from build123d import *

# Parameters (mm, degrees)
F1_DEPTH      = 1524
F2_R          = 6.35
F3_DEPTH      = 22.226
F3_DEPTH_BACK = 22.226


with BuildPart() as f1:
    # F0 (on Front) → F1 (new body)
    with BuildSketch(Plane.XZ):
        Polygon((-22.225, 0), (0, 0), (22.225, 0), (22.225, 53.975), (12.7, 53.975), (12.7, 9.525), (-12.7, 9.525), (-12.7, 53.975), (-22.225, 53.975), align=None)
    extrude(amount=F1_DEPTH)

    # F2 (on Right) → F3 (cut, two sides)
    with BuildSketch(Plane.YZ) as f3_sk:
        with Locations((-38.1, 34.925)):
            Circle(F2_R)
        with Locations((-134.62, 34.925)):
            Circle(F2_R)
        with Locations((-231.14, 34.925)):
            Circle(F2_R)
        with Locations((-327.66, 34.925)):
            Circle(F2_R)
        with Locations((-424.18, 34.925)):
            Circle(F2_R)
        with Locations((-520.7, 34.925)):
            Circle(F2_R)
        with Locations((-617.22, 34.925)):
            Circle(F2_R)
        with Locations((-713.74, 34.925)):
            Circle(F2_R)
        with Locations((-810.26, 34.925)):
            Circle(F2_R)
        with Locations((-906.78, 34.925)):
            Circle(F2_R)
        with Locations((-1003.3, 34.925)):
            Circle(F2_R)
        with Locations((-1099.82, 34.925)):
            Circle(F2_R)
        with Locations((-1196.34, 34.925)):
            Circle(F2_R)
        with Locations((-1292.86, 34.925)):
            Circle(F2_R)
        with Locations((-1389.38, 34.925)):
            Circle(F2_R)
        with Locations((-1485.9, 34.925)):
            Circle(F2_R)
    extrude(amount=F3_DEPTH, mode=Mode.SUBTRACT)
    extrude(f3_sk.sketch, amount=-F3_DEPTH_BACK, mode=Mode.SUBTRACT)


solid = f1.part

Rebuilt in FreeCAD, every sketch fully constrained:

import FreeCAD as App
import Part
import Sketcher
Q = App.Units.Quantity

doc = App.newDocument("Part")
body = doc.addObject("PartDesign::Body", "Body")

# Sketch on XZ plane
sketch1 = body.newObject("Sketcher::SketchObject", "Sketch")
sketch1.AttachmentSupport = (doc.getObject("XZ_Plane"), [""])
sketch1.MapMode = "FlatFace"
sketch1.addGeometry(Part.LineSegment(App.Vector(-22.225, 0, 0), App.Vector(22.225, 0, 0)), False)
sketch1.addGeometry(Part.LineSegment(App.Vector(22.225, 0, 0), App.Vector(22.225, 53.975, 0)), False)
sketch1.addGeometry(Part.LineSegment(App.Vector(22.225, 53.975, 0), App.Vector(12.7, 53.975, 0)), False)
sketch1.addGeometry(Part.LineSegment(App.Vector(12.7, 53.975, 0), App.Vector(12.7, 9.525, 0)), False)
sketch1.addGeometry(Part.LineSegment(App.Vector(12.7, 9.525, 0), App.Vector(-12.7, 9.525, 0)), False)
sketch1.addGeometry(Part.LineSegment(App.Vector(-12.7, 9.525, 0), App.Vector(-12.7, 53.975, 0)), False)
sketch1.addGeometry(Part.LineSegment(App.Vector(-12.7, 53.975, 0), App.Vector(-22.225, 53.975, 0)), False)
sketch1.addGeometry(Part.LineSegment(App.Vector(-22.225, 53.975, 0), App.Vector(-22.225, 0, 0)), False)
sketch1.addConstraint(Sketcher.Constraint("Coincident", 0, 2, 1, 1))
sketch1.addConstraint(Sketcher.Constraint("Coincident", 1, 2, 2, 1))
sketch1.addConstraint(Sketcher.Constraint("Coincident", 2, 2, 3, 1))
sketch1.addConstraint(Sketcher.Constraint("Coincident", 3, 2, 4, 1))
sketch1.addConstraint(Sketcher.Constraint("Coincident", 4, 2, 5, 1))
sketch1.addConstraint(Sketcher.Constraint("Coincident", 5, 2, 6, 1))
sketch1.addConstraint(Sketcher.Constraint("Coincident", 6, 2, 7, 1))
sketch1.addConstraint(Sketcher.Constraint("Coincident", 7, 2, 0, 1))
sketch1.addConstraint(Sketcher.Constraint("Horizontal", 0))
sketch1.addConstraint(Sketcher.Constraint("Vertical", 1))
sketch1.addConstraint(Sketcher.Constraint("Horizontal", 2))
sketch1.addConstraint(Sketcher.Constraint("Vertical", 3))
sketch1.addConstraint(Sketcher.Constraint("Horizontal", 4))
sketch1.addConstraint(Sketcher.Constraint("Vertical", 5))
sketch1.addConstraint(Sketcher.Constraint("Horizontal", 6))
sketch1.addConstraint(Sketcher.Constraint("Vertical", 7))
sketch1.addConstraint(Sketcher.Constraint("Symmetric", 0, 2, 7, 2, -1, 1))
sketch1.addConstraint(Sketcher.Constraint("Symmetric", 2, 2, 5, 2, -2))
sketch1.addConstraint(Sketcher.Constraint("Equal", 0, 3))
sketch1.addConstraint(Sketcher.Constraint("DistanceX", 4, 2, 4, 1, Q("1 in")))
sketch1.addConstraint(Sketcher.Constraint("DistanceX", 0, 1, 0, 2, Q("1.75 in")))
sketch1.addConstraint(Sketcher.Constraint("DistanceY", 1, 1, 1, 2, Q("2.125 in")))
pad1 = body.newObject("PartDesign::Pad", "Pad")
pad1.Profile = sketch1
pad1.Length = Q("60 in")

# Sketch on YZ plane
sketch2 = body.newObject("Sketcher::SketchObject", "Sketch001")
sketch2.AttachmentSupport = (doc.getObject("YZ_Plane"), [""])
sketch2.MapMode = "FlatFace"
sketch2.addGeometry(Part.Circle(App.Vector(-38.1, 34.925, 0), App.Vector(0, 0, 1), 6.35), False)
sketch2.addGeometry(Part.Circle(App.Vector(-134.62, 34.925, 0), App.Vector(0, 0, 1), 6.35), False)
sketch2.addGeometry(Part.Circle(App.Vector(-231.14, 34.925, 0), App.Vector(0, 0, 1), 6.35), False)
sketch2.addGeometry(Part.Circle(App.Vector(-327.66, 34.925, 0), App.Vector(0, 0, 1), 6.35), False)
sketch2.addGeometry(Part.Circle(App.Vector(-424.18, 34.925, 0), App.Vector(0, 0, 1), 6.35), False)
sketch2.addGeometry(Part.Circle(App.Vector(-520.7, 34.925, 0), App.Vector(0, 0, 1), 6.35), False)
sketch2.addGeometry(Part.Circle(App.Vector(-617.22, 34.925, 0), App.Vector(0, 0, 1), 6.35), False)
sketch2.addGeometry(Part.Circle(App.Vector(-713.74, 34.925, 0), App.Vector(0, 0, 1), 6.35), False)
sketch2.addGeometry(Part.Circle(App.Vector(-810.26, 34.925, 0), App.Vector(0, 0, 1), 6.35), False)
sketch2.addGeometry(Part.Circle(App.Vector(-906.78, 34.925, 0), App.Vector(0, 0, 1), 6.35), False)
sketch2.addGeometry(Part.Circle(App.Vector(-1003.3, 34.925, 0), App.Vector(0, 0, 1), 6.35), False)
sketch2.addGeometry(Part.Circle(App.Vector(-1099.82, 34.925, 0), App.Vector(0, 0, 1), 6.35), False)
sketch2.addGeometry(Part.Circle(App.Vector(-1196.34, 34.925, 0), App.Vector(0, 0, 1), 6.35), False)
sketch2.addGeometry(Part.Circle(App.Vector(-1292.86, 34.925, 0), App.Vector(0, 0, 1), 6.35), False)
sketch2.addGeometry(Part.Circle(App.Vector(-1389.38, 34.925, 0), App.Vector(0, 0, 1), 6.35), False)
sketch2.addGeometry(Part.Circle(App.Vector(-1485.9, 34.925, 0), App.Vector(0, 0, 1), 6.35), False)
sketch2.addConstraint(Sketcher.Constraint("Equal", 0, 1))
sketch2.addConstraint(Sketcher.Constraint("Equal", 1, 2))
sketch2.addConstraint(Sketcher.Constraint("Equal", 2, 3))
sketch2.addConstraint(Sketcher.Constraint("Equal", 3, 4))
sketch2.addConstraint(Sketcher.Constraint("Equal", 4, 5))
sketch2.addConstraint(Sketcher.Constraint("Equal", 5, 6))
sketch2.addConstraint(Sketcher.Constraint("Equal", 6, 7))
sketch2.addConstraint(Sketcher.Constraint("Equal", 7, 8))
sketch2.addConstraint(Sketcher.Constraint("Equal", 8, 9))
sketch2.addConstraint(Sketcher.Constraint("Equal", 9, 10))
sketch2.addConstraint(Sketcher.Constraint("Equal", 10, 11))
sketch2.addConstraint(Sketcher.Constraint("Equal", 11, 12))
sketch2.addConstraint(Sketcher.Constraint("Equal", 12, 13))
sketch2.addConstraint(Sketcher.Constraint("Equal", 13, 14))
sketch2.addConstraint(Sketcher.Constraint("Equal", 14, 15))
sketch2.addConstraint(Sketcher.Constraint("Horizontal", 0, 3, 1, 3))
sketch2.addConstraint(Sketcher.Constraint("Horizontal", 1, 3, 2, 3))
sketch2.addConstraint(Sketcher.Constraint("Horizontal", 2, 3, 3, 3))
sketch2.addConstraint(Sketcher.Constraint("Horizontal", 3, 3, 4, 3))
sketch2.addConstraint(Sketcher.Constraint("Horizontal", 4, 3, 5, 3))
sketch2.addConstraint(Sketcher.Constraint("Horizontal", 5, 3, 6, 3))
sketch2.addConstraint(Sketcher.Constraint("Horizontal", 6, 3, 7, 3))
sketch2.addConstraint(Sketcher.Constraint("Horizontal", 7, 3, 8, 3))
sketch2.addConstraint(Sketcher.Constraint("Horizontal", 8, 3, 9, 3))
sketch2.addConstraint(Sketcher.Constraint("Horizontal", 9, 3, 10, 3))
sketch2.addConstraint(Sketcher.Constraint("Horizontal", 10, 3, 11, 3))
sketch2.addConstraint(Sketcher.Constraint("Horizontal", 11, 3, 12, 3))
sketch2.addConstraint(Sketcher.Constraint("Horizontal", 12, 3, 13, 3))
sketch2.addConstraint(Sketcher.Constraint("Horizontal", 13, 3, 14, 3))
sketch2.addConstraint(Sketcher.Constraint("Horizontal", 14, 3, 15, 3))
sketch2.addConstraint(Sketcher.Constraint("Diameter", 0, Q("0.5 in")))
sketch2.addConstraint(Sketcher.Constraint("DistanceX", 5, 3, 0, 3, Q("19 in")))
sketch2.addConstraint(Sketcher.Constraint("DistanceX", 6, 3, 1, 3, Q("19 in")))
sketch2.addConstraint(Sketcher.Constraint("DistanceX", 7, 3, 2, 3, Q("19 in")))
sketch2.addConstraint(Sketcher.Constraint("DistanceX", 8, 3, 3, 3, Q("19 in")))
sketch2.addConstraint(Sketcher.Constraint("DistanceX", 9, 3, 4, 3, Q("19 in")))
sketch2.addConstraint(Sketcher.Constraint("DistanceX", 10, 3, 5, 3, Q("19 in")))
sketch2.addConstraint(Sketcher.Constraint("DistanceX", 11, 3, 6, 3, Q("19 in")))
sketch2.addConstraint(Sketcher.Constraint("DistanceX", 12, 3, 7, 3, Q("19 in")))
sketch2.addConstraint(Sketcher.Constraint("DistanceX", 13, 3, 8, 3, Q("19 in")))
sketch2.addConstraint(Sketcher.Constraint("DistanceX", 14, 3, 9, 3, Q("19 in")))
sketch2.addConstraint(Sketcher.Constraint("DistanceX", 15, 3, 10, 3, Q("19 in")))
sketch2.addConstraint(Sketcher.Constraint("DistanceX", 0, 3, -1, 1, Q("1.5 in")))
sketch2.addConstraint(Sketcher.Constraint("DistanceX", 1, 3, -1, 1, Q("5.3 in")))
sketch2.addConstraint(Sketcher.Constraint("DistanceX", 2, 3, -1, 1, Q("9.1 in")))
sketch2.addConstraint(Sketcher.Constraint("DistanceX", 3, 3, -1, 1, Q("12.9 in")))
sketch2.addConstraint(Sketcher.Constraint("DistanceX", 4, 3, -1, 1, Q("16.7 in")))
sketch2.addConstraint(Sketcher.Constraint("DistanceY", -1, 1, 0, 3, Q("1.375 in")))
pocket1 = body.newObject("PartDesign::Pocket", "Pocket")
pocket1.Profile = sketch2
pocket1.Type = "ThroughAll"
pocket1.Midplane = True

doc.recompute()
